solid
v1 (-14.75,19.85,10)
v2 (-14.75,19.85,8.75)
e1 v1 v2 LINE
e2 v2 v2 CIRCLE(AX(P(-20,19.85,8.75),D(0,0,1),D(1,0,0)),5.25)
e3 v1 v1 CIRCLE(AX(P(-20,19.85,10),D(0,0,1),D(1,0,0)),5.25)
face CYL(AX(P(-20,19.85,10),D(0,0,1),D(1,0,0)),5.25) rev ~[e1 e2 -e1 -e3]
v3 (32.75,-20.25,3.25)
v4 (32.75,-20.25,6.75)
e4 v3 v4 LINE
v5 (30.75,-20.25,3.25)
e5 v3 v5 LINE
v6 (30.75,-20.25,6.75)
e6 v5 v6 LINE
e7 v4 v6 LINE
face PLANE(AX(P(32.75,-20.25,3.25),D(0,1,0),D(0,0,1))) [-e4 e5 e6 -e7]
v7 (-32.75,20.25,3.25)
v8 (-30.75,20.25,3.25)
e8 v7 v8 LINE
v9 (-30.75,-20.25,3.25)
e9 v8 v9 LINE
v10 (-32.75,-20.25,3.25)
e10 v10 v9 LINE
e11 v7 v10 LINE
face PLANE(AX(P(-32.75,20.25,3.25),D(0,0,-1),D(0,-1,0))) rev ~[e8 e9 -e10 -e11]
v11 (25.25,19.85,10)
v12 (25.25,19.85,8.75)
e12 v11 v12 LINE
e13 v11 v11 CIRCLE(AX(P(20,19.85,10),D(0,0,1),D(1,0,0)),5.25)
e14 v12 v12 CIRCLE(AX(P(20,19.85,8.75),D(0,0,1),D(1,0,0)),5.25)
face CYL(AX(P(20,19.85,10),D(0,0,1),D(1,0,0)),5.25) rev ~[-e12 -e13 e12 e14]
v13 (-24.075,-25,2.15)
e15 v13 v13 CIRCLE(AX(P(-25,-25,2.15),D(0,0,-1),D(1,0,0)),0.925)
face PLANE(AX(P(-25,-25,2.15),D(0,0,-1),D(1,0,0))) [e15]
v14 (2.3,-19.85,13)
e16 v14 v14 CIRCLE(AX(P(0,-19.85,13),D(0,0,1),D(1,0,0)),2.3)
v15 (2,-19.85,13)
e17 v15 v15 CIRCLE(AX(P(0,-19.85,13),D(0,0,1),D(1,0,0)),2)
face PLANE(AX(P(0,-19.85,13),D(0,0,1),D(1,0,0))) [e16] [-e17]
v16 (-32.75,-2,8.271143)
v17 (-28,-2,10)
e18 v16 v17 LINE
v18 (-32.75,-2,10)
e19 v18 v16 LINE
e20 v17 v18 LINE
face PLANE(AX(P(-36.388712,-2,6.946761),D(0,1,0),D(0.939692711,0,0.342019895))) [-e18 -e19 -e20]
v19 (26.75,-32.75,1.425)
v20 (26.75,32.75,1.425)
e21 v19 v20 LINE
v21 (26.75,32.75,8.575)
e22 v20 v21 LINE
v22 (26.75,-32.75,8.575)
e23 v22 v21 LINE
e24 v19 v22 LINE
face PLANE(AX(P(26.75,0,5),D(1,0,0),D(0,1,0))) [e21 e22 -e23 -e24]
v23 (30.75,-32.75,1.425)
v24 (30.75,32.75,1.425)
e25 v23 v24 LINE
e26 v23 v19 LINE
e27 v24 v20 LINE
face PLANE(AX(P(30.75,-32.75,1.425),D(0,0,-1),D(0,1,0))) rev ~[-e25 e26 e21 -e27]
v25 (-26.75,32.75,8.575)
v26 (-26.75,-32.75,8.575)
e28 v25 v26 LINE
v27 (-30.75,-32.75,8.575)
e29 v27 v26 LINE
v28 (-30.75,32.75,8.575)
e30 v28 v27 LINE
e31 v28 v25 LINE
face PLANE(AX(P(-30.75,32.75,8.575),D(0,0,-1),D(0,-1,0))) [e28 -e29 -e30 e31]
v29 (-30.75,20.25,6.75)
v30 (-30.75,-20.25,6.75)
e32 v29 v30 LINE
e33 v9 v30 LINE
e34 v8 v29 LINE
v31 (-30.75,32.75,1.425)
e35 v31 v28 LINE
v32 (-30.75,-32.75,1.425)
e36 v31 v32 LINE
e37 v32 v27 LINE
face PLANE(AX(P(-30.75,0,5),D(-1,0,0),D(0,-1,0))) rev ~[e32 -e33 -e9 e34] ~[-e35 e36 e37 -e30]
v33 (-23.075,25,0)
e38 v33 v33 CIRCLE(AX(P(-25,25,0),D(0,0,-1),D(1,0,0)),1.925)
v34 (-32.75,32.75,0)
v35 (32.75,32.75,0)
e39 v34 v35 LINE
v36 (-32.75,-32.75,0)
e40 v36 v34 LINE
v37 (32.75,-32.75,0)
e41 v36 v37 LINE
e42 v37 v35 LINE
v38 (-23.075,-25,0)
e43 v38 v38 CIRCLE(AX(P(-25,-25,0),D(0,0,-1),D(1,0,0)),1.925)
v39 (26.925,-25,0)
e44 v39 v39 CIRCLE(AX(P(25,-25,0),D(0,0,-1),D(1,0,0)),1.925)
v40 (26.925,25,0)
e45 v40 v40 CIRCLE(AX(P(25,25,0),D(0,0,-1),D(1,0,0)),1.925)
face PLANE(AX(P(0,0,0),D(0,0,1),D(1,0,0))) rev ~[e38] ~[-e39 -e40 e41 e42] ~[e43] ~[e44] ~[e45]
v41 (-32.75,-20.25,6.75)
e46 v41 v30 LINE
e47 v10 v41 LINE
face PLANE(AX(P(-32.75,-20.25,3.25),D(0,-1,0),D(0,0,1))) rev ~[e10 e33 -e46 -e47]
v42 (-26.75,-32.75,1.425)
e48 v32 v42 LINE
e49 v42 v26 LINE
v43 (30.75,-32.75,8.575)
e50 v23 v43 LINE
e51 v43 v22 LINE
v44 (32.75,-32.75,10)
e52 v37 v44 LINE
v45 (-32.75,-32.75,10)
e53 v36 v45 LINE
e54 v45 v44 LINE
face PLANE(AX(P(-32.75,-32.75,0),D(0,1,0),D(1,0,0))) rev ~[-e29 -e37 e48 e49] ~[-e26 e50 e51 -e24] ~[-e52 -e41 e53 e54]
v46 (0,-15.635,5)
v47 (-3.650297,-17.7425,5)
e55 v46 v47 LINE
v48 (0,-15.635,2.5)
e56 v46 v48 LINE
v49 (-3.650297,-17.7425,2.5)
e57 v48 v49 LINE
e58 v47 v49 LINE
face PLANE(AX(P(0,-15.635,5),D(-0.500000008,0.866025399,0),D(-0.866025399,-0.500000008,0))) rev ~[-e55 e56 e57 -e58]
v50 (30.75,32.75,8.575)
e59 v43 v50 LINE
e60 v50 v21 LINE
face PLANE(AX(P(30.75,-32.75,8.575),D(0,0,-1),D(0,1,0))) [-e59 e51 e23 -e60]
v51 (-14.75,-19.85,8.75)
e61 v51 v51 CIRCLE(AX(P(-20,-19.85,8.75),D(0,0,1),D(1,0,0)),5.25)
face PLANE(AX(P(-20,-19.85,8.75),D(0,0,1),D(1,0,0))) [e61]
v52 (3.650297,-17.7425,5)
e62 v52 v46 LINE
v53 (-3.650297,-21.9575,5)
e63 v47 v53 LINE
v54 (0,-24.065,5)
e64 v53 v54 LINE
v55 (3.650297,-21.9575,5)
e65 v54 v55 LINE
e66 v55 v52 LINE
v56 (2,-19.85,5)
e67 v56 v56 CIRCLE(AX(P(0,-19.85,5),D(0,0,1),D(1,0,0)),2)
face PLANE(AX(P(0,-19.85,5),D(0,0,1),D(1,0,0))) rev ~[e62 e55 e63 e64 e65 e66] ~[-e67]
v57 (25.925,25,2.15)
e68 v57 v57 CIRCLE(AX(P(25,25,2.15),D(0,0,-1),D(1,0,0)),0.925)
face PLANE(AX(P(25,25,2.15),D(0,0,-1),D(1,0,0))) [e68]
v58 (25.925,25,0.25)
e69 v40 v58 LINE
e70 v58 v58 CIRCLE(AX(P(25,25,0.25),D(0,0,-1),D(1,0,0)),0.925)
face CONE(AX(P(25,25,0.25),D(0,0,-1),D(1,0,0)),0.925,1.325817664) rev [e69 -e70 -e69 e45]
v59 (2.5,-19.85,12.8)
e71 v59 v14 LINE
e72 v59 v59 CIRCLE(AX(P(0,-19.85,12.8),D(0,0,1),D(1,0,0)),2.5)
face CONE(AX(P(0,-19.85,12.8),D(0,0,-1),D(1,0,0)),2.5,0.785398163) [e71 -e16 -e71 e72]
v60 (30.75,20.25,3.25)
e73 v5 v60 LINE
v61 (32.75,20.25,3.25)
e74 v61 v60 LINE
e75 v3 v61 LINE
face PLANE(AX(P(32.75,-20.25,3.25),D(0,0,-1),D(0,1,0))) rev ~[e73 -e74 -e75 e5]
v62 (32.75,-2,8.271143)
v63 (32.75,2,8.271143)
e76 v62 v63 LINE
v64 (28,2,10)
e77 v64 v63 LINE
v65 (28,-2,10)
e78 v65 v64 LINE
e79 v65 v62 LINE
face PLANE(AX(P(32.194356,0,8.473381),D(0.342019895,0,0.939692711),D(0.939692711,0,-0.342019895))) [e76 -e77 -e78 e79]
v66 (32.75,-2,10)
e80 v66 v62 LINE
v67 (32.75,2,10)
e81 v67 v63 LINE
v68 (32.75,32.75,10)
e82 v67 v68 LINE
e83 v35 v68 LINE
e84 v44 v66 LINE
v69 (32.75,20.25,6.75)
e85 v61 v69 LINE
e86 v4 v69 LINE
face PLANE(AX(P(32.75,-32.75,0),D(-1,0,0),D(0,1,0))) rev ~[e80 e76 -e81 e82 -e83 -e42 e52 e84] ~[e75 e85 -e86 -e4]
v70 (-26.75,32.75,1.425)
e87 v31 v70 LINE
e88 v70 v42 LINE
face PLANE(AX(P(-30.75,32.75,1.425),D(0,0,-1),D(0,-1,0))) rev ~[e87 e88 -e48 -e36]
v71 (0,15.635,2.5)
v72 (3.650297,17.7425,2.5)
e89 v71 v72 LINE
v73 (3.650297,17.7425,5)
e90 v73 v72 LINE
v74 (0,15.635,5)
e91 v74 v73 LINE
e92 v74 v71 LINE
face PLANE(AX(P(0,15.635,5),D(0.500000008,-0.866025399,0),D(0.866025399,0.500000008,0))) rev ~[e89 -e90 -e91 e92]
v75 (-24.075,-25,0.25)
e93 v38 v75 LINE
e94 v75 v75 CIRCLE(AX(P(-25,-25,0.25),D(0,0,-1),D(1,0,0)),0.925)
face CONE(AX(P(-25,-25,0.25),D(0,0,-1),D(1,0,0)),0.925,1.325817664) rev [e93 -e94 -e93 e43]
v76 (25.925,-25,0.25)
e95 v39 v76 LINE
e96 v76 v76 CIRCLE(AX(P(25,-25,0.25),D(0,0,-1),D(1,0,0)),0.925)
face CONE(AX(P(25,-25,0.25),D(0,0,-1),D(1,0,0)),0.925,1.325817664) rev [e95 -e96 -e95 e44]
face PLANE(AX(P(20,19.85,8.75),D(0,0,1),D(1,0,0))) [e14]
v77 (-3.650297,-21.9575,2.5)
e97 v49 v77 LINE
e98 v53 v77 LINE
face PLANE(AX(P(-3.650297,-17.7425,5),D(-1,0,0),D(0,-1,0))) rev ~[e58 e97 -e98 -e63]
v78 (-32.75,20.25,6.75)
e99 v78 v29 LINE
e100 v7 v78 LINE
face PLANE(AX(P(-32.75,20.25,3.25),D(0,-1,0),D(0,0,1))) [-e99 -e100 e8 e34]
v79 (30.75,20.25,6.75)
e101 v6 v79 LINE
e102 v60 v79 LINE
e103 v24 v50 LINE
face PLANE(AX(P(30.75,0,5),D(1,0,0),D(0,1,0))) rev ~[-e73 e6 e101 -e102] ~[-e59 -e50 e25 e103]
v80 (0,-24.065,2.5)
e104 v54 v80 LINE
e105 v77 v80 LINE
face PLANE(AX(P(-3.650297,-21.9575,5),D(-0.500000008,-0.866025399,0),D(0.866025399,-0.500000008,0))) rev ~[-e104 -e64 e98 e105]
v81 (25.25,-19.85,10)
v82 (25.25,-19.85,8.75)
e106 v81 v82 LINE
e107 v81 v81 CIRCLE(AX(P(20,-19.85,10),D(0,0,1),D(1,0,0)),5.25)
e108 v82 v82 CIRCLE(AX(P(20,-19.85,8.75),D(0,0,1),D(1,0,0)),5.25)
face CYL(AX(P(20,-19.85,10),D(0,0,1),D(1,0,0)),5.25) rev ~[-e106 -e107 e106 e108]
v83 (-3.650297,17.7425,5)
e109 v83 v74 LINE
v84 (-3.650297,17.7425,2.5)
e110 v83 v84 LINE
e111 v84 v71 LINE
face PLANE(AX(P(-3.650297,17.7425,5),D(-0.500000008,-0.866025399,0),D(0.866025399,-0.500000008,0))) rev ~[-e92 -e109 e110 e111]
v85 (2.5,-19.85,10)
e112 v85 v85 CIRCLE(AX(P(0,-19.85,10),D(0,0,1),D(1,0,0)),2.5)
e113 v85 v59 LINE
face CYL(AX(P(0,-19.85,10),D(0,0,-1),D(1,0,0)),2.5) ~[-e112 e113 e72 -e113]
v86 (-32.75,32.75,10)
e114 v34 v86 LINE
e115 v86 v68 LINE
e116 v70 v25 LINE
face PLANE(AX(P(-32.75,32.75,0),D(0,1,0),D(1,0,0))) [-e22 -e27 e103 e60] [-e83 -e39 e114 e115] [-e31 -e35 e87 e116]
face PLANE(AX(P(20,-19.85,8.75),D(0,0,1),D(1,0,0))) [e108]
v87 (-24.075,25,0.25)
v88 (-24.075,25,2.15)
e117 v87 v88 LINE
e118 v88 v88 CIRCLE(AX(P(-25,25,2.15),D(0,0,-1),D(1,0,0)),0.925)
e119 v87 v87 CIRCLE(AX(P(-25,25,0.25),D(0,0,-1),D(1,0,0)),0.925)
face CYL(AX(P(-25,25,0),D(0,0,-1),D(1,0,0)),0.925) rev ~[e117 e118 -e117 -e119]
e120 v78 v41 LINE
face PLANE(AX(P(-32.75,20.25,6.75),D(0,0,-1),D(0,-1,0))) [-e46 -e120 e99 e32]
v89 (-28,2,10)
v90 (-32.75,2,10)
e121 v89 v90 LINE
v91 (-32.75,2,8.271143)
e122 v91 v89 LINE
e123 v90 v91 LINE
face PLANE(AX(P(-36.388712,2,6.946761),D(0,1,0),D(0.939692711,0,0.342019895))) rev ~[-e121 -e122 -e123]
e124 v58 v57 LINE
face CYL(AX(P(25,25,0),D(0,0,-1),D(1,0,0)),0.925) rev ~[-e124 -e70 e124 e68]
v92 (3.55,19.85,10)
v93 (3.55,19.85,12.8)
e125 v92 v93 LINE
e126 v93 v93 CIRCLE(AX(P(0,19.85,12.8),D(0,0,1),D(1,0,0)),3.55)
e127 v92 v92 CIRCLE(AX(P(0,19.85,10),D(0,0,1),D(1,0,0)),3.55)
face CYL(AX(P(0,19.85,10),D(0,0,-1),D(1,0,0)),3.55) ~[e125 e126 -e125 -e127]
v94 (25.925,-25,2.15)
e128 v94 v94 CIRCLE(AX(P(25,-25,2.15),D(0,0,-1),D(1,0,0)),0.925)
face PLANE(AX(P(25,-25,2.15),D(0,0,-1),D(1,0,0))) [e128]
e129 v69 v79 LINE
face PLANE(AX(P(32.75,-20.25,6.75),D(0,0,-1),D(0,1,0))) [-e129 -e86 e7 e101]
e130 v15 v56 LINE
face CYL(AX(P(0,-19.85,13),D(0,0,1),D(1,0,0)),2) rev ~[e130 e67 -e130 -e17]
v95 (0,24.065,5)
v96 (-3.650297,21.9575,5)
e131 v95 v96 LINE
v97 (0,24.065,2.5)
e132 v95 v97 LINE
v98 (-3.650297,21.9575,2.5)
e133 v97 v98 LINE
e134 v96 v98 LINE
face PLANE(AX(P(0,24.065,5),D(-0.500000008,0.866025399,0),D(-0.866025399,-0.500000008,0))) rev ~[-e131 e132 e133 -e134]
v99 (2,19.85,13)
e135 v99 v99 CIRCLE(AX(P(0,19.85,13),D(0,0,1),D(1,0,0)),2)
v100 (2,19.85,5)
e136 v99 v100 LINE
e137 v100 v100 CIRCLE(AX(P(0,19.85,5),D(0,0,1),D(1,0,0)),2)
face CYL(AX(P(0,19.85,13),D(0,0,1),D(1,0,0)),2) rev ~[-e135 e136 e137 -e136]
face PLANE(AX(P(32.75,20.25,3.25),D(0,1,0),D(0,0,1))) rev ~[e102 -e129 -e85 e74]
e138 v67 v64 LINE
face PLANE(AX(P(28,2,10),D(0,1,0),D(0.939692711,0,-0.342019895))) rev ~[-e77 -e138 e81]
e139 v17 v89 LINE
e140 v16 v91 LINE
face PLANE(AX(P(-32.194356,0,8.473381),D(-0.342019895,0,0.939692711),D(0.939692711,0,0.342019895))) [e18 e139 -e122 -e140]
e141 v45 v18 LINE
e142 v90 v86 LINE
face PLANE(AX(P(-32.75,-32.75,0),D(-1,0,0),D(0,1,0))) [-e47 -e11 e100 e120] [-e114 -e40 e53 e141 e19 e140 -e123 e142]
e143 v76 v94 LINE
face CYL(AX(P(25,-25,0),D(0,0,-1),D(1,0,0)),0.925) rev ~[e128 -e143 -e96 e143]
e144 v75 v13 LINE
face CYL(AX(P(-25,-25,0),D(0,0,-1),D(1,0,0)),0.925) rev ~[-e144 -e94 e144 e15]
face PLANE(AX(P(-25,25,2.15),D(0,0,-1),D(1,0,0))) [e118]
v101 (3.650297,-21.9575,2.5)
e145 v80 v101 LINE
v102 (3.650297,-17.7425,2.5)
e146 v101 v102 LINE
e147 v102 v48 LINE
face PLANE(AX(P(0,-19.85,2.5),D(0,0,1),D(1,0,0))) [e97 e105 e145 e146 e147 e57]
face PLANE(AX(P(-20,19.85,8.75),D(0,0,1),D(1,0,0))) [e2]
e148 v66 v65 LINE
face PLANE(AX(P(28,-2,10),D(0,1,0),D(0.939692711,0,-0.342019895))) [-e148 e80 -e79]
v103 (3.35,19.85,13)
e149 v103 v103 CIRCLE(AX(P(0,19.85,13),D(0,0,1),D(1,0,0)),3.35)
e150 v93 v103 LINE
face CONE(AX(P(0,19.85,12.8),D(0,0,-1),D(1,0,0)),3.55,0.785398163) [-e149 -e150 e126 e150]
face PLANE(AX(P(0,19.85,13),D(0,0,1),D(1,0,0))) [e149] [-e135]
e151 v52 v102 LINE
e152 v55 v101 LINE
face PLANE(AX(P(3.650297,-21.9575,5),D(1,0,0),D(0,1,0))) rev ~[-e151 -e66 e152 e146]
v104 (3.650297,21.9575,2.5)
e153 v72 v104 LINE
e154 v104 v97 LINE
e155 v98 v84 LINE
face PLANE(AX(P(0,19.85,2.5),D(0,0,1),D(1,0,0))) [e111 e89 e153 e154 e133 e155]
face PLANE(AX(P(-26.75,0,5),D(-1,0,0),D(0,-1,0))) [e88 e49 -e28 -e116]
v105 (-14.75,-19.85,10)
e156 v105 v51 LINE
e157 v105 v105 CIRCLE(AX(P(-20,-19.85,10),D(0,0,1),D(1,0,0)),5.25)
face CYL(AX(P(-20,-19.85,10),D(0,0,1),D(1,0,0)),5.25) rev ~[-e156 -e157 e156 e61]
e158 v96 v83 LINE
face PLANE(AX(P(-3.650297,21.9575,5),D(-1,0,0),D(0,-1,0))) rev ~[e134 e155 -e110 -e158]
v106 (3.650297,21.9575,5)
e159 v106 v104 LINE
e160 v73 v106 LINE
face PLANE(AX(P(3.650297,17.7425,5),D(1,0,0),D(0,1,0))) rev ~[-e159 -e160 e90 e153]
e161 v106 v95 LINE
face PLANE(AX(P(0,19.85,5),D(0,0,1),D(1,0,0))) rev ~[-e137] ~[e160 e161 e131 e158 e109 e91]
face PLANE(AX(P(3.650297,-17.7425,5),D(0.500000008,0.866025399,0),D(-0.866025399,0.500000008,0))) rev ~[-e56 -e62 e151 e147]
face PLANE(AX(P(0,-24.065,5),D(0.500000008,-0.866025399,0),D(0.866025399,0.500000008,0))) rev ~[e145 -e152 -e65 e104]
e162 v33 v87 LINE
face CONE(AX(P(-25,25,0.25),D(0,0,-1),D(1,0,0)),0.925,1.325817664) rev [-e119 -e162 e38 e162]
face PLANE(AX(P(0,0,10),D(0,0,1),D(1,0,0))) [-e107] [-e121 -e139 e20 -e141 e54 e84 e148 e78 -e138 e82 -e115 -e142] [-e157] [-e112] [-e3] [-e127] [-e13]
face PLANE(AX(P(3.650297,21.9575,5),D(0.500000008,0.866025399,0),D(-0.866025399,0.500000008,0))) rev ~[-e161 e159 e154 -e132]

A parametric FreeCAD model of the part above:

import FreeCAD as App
import Part
import Sketcher
Q = App.Units.Quantity


def edges_at(feature, points):
    """Names of the edges that pass closest to the given points."""
    edges = feature.Shape.Edges
    near = lambda p: min(range(len(edges)), key=lambda i: edges[i].distToShape(Part.Vertex(*p))[0])
    return sorted({f"Edge{near(p) + 1}" for p in points})

doc = App.newDocument("Part")
params = doc.addObject("Spreadsheet::Sheet", "Params")
for row, (alias, value) in enumerate([
    ("sketch1_width", "65.5 mm"),
    ("pad1_length", "10 mm"),
    ("sketch2_diameter", "5 mm"),
    ("sketch2_diameter2", "7.1 mm"),
    ("pad2_length", "3 mm"),
    ("sketch3_diameter", "4 mm"),
    ("pocket1_length", "8 mm"),
    ("chamfer_size", "0.2 mm"),
    ("pocket2_length", "2.5 mm"),
    ("sketch5_width", "40.5 mm"),
    ("sketch5_height", "3.5 mm"),
    ("pocket3_length", "2 mm"),
    ("sketch6_width", "40.5 mm"),
    ("sketch6_height", "3.5 mm"),
    ("pocket4_length", "2 mm"),
    ("sketch7_width", "65.5 mm"),
    ("sketch7_height", "7.15 mm"),
    ("pocket5_length", "4 mm"),
    ("sketch8_width", "65.5 mm"),
    ("sketch8_height", "7.15 mm"),
    ("pocket6_length", "4 mm"),
    ("sketch9_diameter", "1.85 mm"),
    ("pocket7_length", "2.15 mm"),
    ("chamfer2_size", "1 mm"),
    ("chamfer2_size2", "0.25 mm"),
    ("sketch10_diameter", "10.5 mm"),
    ("pocket8_length", "1.25 mm"),
    ("sketch11_height", "4 mm"),
    ("pocket9_length", "4 mm"),
    ("sketch12_height", "4 mm"),
    ("pocket10_length", "5 mm"),
], start=1):
    params.set(f"A{row}", alias)
    params.set(f"B{row}", "=" + value)
    params.setAlias(f"B{row}", alias)

body = doc.addObject("PartDesign::Body", "Body")

# Sketch on XY plane
sketch1 = body.newObject("Sketcher::SketchObject", "Sketch")
sketch1.AttachmentSupport = (doc.getObject("XY_Plane"), [""])
sketch1.MapMode = "FlatFace"
sketch1.addGeometry(Part.LineSegment(App.Vector(-33, 33, 0), App.Vector(-33, -33, 0)), False)
sketch1.addGeometry(Part.LineSegment(App.Vector(-33, -33, 0), App.Vector(33, -33, 0)), False)
sketch1.addGeometry(Part.LineSegment(App.Vector(33, -33, 0), App.Vector(33, 33, 0)), False)
sketch1.addGeometry(Part.LineSegment(App.Vector(33, 33, 0), App.Vector(-33, 33, 0)), False)
sketch1.addConstraint(Sketcher.Constraint("Coincident", 0, 2, 1, 1))
sketch1.addConstraint(Sketcher.Constraint("Coincident", 1, 2, 2, 1))
sketch1.addConstraint(Sketcher.Constraint("Coincident", 2, 2, 3, 1))
sketch1.addConstraint(Sketcher.Constraint("Coincident", 3, 2, 0, 1))
sketch1.addConstraint(Sketcher.Constraint("Vertical", 0))
sketch1.addConstraint(Sketcher.Constraint("Horizontal", 1))
sketch1.addConstraint(Sketcher.Constraint("Vertical", 2))
sketch1.addConstraint(Sketcher.Constraint("Horizontal", 3))
sketch1.addConstraint(Sketcher.Constraint("Symmetric", 0, 2, 2, 2, -1, 1))
sketch1.addConstraint(Sketcher.Constraint("Equal", 3, 0))
sketch1.addConstraint(Sketcher.Constraint("DistanceX", 1, 1, 1, 2, Q("65.5 mm")))
sketch1.setExpression("Constraints[10]", "Params.sketch1_width")
pad1 = body.newObject("PartDesign::Pad", "Pad")
pad1.Profile = sketch1
pad1.setExpression("Length", "Params.pad1_length")

# Sketch on XY plane
sketch2 = body.newObject("Sketcher::SketchObject", "Sketch001")
sketch2.AttachmentSupport = (doc.getObject("XY_Plane"), [""])
sketch2.MapMode = "FlatFace"
sketch2.AttachmentOffset = App.Placement(App.Vector(0, 0, 10), App.Rotation())
sketch2.addGeometry(Part.Circle(App.Vector(0, 19.9, 0), App.Vector(0, 0, 1), 3.5), False)
sketch2.addGeometry(Part.Circle(App.Vector(0, -19.9, 0), App.Vector(0, 0, 1), 2.5), False)
sketch2.addConstraint(Sketcher.Constraint("Symmetric", 0, 3, 1, 3, -1, 1))
sketch2.addConstraint(Sketcher.Constraint("PointOnObject", 0, 3, -2))
sketch2.addConstraint(Sketcher.Constraint("Diameter", 1, Q("5 mm")))
sketch2.addConstraint(Sketcher.Constraint("Diameter", 0, Q("7.1 mm")))
sketch2.addConstraint(Sketcher.Constraint("DistanceY", 1, 3, 0, 3, Q("39.7 mm")))
sketch2.setExpression("Constraints[2]", "Params.sketch2_diameter")
sketch2.setExpression("Constraints[3]", "Params.sketch2_diameter2")
pad2 = body.newObject("PartDesign::Pad", "Pad001")
pad2.Profile = sketch2
pad2.setExpression("Length", "Params.pad2_length")

# Sketch on XY plane
sketch3 = body.newObject("Sketcher::SketchObject", "Sketch002")
sketch3.AttachmentSupport = (doc.getObject("XY_Plane"), [""])
sketch3.MapMode = "FlatFace"
sketch3.AttachmentOffset = App.Placement(App.Vector(0, 0, 13), App.Rotation())
sketch3.addGeometry(Part.Circle(App.Vector(0, 19.9, 0), App.Vector(0, 0, 1), 2), False)
sketch3.addGeometry(Part.Circle(App.Vector(0, -19.9, 0), App.Vector(0, 0, 1), 2), False)
sketch3.addConstraint(Sketcher.Constraint("Equal", 0, 1))
sketch3.addConstraint(Sketcher.Constraint("Symmetric", 0, 3, 1, 3, -1, 1))
sketch3.addConstraint(Sketcher.Constraint("PointOnObject", 0, 3, -2))
sketch3.addConstraint(Sketcher.Constraint("Diameter", 0, Q("4 mm")))
sketch3.addConstraint(Sketcher.Constraint("DistanceY", 1, 3, 0, 3, Q("39.7 mm")))
sketch3.setExpression("Constraints[3]", "Params.sketch3_diameter")
pocket1 = body.newObject("PartDesign::Pocket", "Pocket")
pocket1.Profile = sketch3
pocket1.setExpression("Length", "Params.pocket1_length")
doc.recompute()

chamfer = body.newObject("PartDesign::Chamfer", "Chamfer")
chamfer.Base = (pocket1, edges_at(pocket1, [(-3.55, 19.85, 13), (-2.5, -19.85, 13)]))
chamfer.setExpression("Size", "Params.chamfer_size")

# Sketch on XY plane
sketch4 = body.newObject("Sketcher::SketchObject", "Sketch003")
sketch4.AttachmentSupport = (doc.getObject("XY_Plane"), [""])
sketch4.MapMode = "FlatFace"
sketch4.AttachmentOffset = App.Placement(App.Vector(0, 0, 5), App.Rotation())
sketch4.addGeometry(Part.LineSegment(App.Vector(-3.7, 17.7, 0), App.Vector(0, 15.6, 0)), False)
sketch4.addGeometry(Part.LineSegment(App.Vector(0, 15.6, 0), App.Vector(3.7, 17.7, 0)), False)
sketch4.addGeometry(Part.LineSegment(App.Vector(3.7, 17.7, 0), App.Vector(3.7, 22, 0)), False)
sketch4.addGeometry(Part.LineSegment(App.Vector(3.7, 22, 0), App.Vector(0, 24.1, 0)), False)
sketch4.addGeometry(Part.LineSegment(App.Vector(0, 24.1, 0), App.Vector(-3.7, 22, 0)), False)
sketch4.addGeometry(Part.LineSegment(App.Vector(-3.7, 22, 0), App.Vector(-3.7, 17.7, 0)), False)
sketch4.addGeometry(Part.LineSegment(App.Vector(-3.7, -22, 0), App.Vector(0, -24.1, 0)), False)
sketch4.addGeometry(Part.LineSegment(App.Vector(0, -24.1, 0), App.Vector(3.7, -22, 0)), False)
sketch4.addGeometry(Part.LineSegment(App.Vector(3.7, -22, 0), App.Vector(3.7, -17.7, 0)), False)
sketch4.addGeometry(Part.LineSegment(App.Vector(3.7, -17.7, 0), App.Vector(0, -15.6, 0)), False)
sketch4.addGeometry(Part.LineSegment(App.Vector(0, -15.6, 0), App.Vector(-3.7, -17.7, 0)), False)
sketch4.addGeometry(Part.LineSegment(App.Vector(-3.7, -17.7, 0), App.Vector(-3.7, -22, 0)), False)
sketch4.addConstraint(Sketcher.Constraint("Coincident", 0, 2, 1, 1))
sketch4.addConstraint(Sketcher.Constraint("Coincident", 1, 2, 2, 1))
sketch4.addConstraint(Sketcher.Constraint("Coincident", 2, 2, 3, 1))
sketch4.addConstraint(Sketcher.Constraint("Coincident", 3, 2, 4, 1))
sketch4.addConstraint(Sketcher.Constraint("Coincident", 4, 2, 5, 1))
sketch4.addConstraint(Sketcher.Constraint("Coincident", 5, 2, 0, 1))
sketch4.addConstraint(Sketcher.Constraint("Coincident", 6, 2, 7, 1))
sketch4.addConstraint(Sketcher.Constraint("Coincident", 7, 2, 8, 1))
sketch4.addConstraint(Sketcher.Constraint("Coincident", 8, 2, 9, 1))
sketch4.addConstraint(Sketcher.Constraint("Coincident", 9, 2, 10, 1))
sketch4.addConstraint(Sketcher.Constraint("Coincident", 10, 2, 11, 1))
sketch4.addConstraint(Sketcher.Constraint("Coincident", 11, 2, 6, 1))
sketch4.addConstraint(Sketcher.Constraint("Vertical", 2))
sketch4.addConstraint(Sketcher.Constraint("Vertical", 5))
sketch4.addConstraint(Sketcher.Constraint("Vertical", 8))
sketch4.addConstraint(Sketcher.Constraint("Vertical", 11))
sketch4.addConstraint(Sketcher.Constraint("Symmetric", 3, 2, 6, 2, -1, 1))
sketch4.addConstraint(Sketcher.Constraint("Symmetric", 4, 2, 7, 2, -1, 1))
sketch4.addConstraint(Sketcher.Constraint("Symmetric", 0, 2, 9, 2, -1, 1))
sketch4.addConstraint(Sketcher.Constraint("Symmetric", 1, 2, 10, 2, -1, 1))
sketch4.addConstraint(Sketcher.Constraint("Symmetric", 2, 2, 4, 2, -2))
sketch4.addConstraint(Sketcher.Constraint("PointOnObject", 0, 2, -2))
sketch4.addConstraint(Sketcher.Constraint("PointOnObject", 3, 2, -2))
sketch4.addConstraint(Sketcher.Constraint("Parallel", 0, 3))
sketch4.addConstraint(Sketcher.Constraint("Parallel", 1, 4))
sketch4.addConstraint(Sketcher.Constraint("Parallel", 3, 6))
sketch4.addConstraint(Sketcher.Constraint("Parallel", 6, 9))
sketch4.addConstraint(Sketcher.Constraint("Angle", 0, Q("-30.000001 deg")))
sketch4.addConstraint(Sketcher.Constraint("DistanceY", 6, 2, 0, 2, Q("39.7 mm")))
sketch4.addConstraint(Sketcher.Constraint("DistanceY", 2, 1, 2, 2, Q("4.215 mm")))
sketch4.addConstraint(Sketcher.Constraint("DistanceY", 0, 2, 3, 2, Q("8.43 mm")))
pocket2 = body.newObject("PartDesign::Pocket", "Pocket001")
pocket2.Profile = sketch4
pocket2.setExpression("Length", "Params.pocket2_length")

# Sketch on YZ plane
sketch5 = body.newObject("Sketcher::SketchObject", "Sketch004")
sketch5.AttachmentSupport = (doc.getObject("YZ_Plane"), [""])
sketch5.MapMode = "FlatFace"
sketch5.AttachmentOffset = App.Placement(App.Vector(0, 0, 32.75), App.Rotation())
sketch5.addGeometry(Part.LineSegment(App.Vector(-20.2, 6.8, 0), App.Vector(-20.2, 3.2, 0)), False)
sketch5.addGeometry(Part.LineSegment(App.Vector(-20.2, 3.2, 0), App.Vector(20.2, 3.2, 0)), False)
sketch5.addGeometry(Part.LineSegment(App.Vector(20.2, 3.2, 0), App.Vector(20.2, 6.8, 0)), False)
sketch5.addGeometry(Part.LineSegment(App.Vector(20.2, 6.8, 0), App.Vector(-20.2, 6.8, 0)), False)
sketch5.addConstraint(Sketcher.Constraint("Coincident", 0, 2, 1, 1))
sketch5.addConstraint(Sketcher.Constraint("Coincident", 1, 2, 2, 1))
sketch5.addConstraint(Sketcher.Constraint("Coincident", 2, 2, 3, 1))
sketch5.addConstraint(Sketcher.Constraint("Coincident", 3, 2, 0, 1))
sketch5.addConstraint(Sketcher.Constraint("Vertical", 0))
sketch5.addConstraint(Sketcher.Constraint("Horizontal", 1))
sketch5.addConstraint(Sketcher.Constraint("Vertical", 2))
sketch5.addConstraint(Sketcher.Constraint("Horizontal", 3))
sketch5.addConstraint(Sketcher.Constraint("DistanceX", 1, 1, 1, 2, Q("40.5 mm")))
sketch5.addConstraint(Sketcher.Constraint("DistanceY", 0, 2, 0, 1, Q("3.5 mm")))
sketch5.addConstraint(Sketcher.Constraint("DistanceX", 0, 2, -1, 1, Q("20.25 mm")))
sketch5.addConstraint(Sketcher.Constraint("DistanceY", -1, 1, 0, 2, Q("3.25 mm")))
sketch5.setExpression("Constraints[8]", "Params.sketch5_width")
sketch5.setExpression("Constraints[9]", "Params.sketch5_height")
pocket3 = body.newObject("PartDesign::Pocket", "Pocket002")
pocket3.Profile = sketch5
pocket3.setExpression("Length", "Params.pocket3_length")

# Sketch on YZ plane
sketch6 = body.newObject("Sketcher::SketchObject", "Sketch005")
sketch6.AttachmentSupport = (doc.getObject("YZ_Plane"), [""])
sketch6.MapMode = "FlatFace"
sketch6.AttachmentOffset = App.Placement(App.Vector(0, 0, -32.75), App.Rotation())
sketch6.addGeometry(Part.LineSegment(App.Vector(20.2, 6.8, 0), App.Vector(20.2, 3.2, 0)), False)
sketch6.addGeometry(Part.LineSegment(App.Vector(20.2, 3.2, 0), App.Vector(-20.2, 3.2, 0)), False)
sketch6.addGeometry(Part.LineSegment(App.Vector(-20.2, 3.2, 0), App.Vector(-20.2, 6.8, 0)), False)
sketch6.addGeometry(Part.LineSegment(App.Vector(-20.2, 6.8, 0), App.Vector(20.2, 6.8, 0)), False)
sketch6.addConstraint(Sketcher.Constraint("Coincident", 0, 2, 1, 1))
sketch6.addConstraint(Sketcher.Constraint("Coincident", 1, 2, 2, 1))
sketch6.addConstraint(Sketcher.Constraint("Coincident", 2, 2, 3, 1))
sketch6.addConstraint(Sketcher.Constraint("Coincident", 3, 2, 0, 1))
sketch6.addConstraint(Sketcher.Constraint("Vertical", 0))
sketch6.addConstraint(Sketcher.Constraint("Horizontal", 1))
sketch6.addConstraint(Sketcher.Constraint("Vertical", 2))
sketch6.addConstraint(Sketcher.Constraint("Horizontal", 3))
sketch6.addConstraint(Sketcher.Constraint("DistanceX", 1, 2, 1, 1, Q("40.5 mm")))
sketch6.addConstraint(Sketcher.Constraint("DistanceY", 0, 2, 0, 1, Q("3.5 mm")))
sketch6.addConstraint(Sketcher.Constraint("DistanceX", -1, 1, 0, 2, Q("20.25 mm")))
sketch6.addConstraint(Sketcher.Constraint("DistanceY", -1, 1, 0, 2, Q("3.25 mm")))
sketch6.setExpression("Constraints[8]", "Params.sketch6_width")
sketch6.setExpression("Constraints[9]", "Params.sketch6_height")
pocket4 = body.newObject("PartDesign::Pocket", "Pocket003")
pocket4.Profile = sketch6
pocket4.setExpression("Length", "Params.pocket4_length")
pocket4.Reversed = True

# Sketch on YZ plane
sketch7 = body.newObject("Sketcher::SketchObject", "Sketch006")
sketch7.AttachmentSupport = (doc.getObject("YZ_Plane"), [""])
sketch7.MapMode = "FlatFace"
sketch7.AttachmentOffset = App.Placement(App.Vector(0, 0, 30.75), App.Rotation())
sketch7.addGeometry(Part.LineSegment(App.Vector(-33, 9, 0), App.Vector(-33, 1, 0)), False)
sketch7.addGeometry(Part.LineSegment(App.Vector(-33, 1, 0), App.Vector(33, 1, 0)), False)
sketch7.addGeometry(Part.LineSegment(App.Vector(33, 1, 0), App.Vector(33, 9, 0)), False)
sketch7.addGeometry(Part.LineSegment(App.Vector(33, 9, 0), App.Vector(-33, 9, 0)), False)
sketch7.addConstraint(Sketcher.Constraint("Coincident", 0, 2, 1, 1))
sketch7.addConstraint(Sketcher.Constraint("Coincident", 1, 2, 2, 1))
sketch7.addConstraint(Sketcher.Constraint("Coincident", 2, 2, 3, 1))
sketch7.addConstraint(Sketcher.Constraint("Coincident", 3, 2, 0, 1))
sketch7.addConstraint(Sketcher.Constraint("Vertical", 0))
sketch7.addConstraint(Sketcher.Constraint("Horizontal", 1))
sketch7.addConstraint(Sketcher.Constraint("Vertical", 2))
sketch7.addConstraint(Sketcher.Constraint("Horizontal", 3))
sketch7.addConstraint(Sketcher.Constraint("DistanceX", 1, 1, 1, 2, Q("65.5 mm")))
sketch7.addConstraint(Sketcher.Constraint("DistanceY", 0, 2, 0, 1, Q("7.15 mm")))
sketch7.addConstraint(Sketcher.Constraint("DistanceX", 0, 2, -1, 1, Q("32.75 mm")))
sketch7.addConstraint(Sketcher.Constraint("DistanceY", -1, 1, 0, 2, Q("1.425 mm")))
sketch7.setExpression("Constraints[8]", "Params.sketch7_width")
sketch7.setExpression("Constraints[9]", "Params.sketch7_height")
pocket5 = body.newObject("PartDesign::Pocket", "Pocket004")
pocket5.Profile = sketch7
pocket5.setExpression("Length", "Params.pocket5_length")

# Sketch on YZ plane
sketch8 = body.newObject("Sketcher::SketchObject", "Sketch007")
sketch8.AttachmentSupport = (doc.getObject("YZ_Plane"), [""])
sketch8.MapMode = "FlatFace"
sketch8.AttachmentOffset = App.Placement(App.Vector(0, 0, -30.75), App.Rotation())
sketch8.addGeometry(Part.LineSegment(App.Vector(33, 9, 0), App.Vector(33, 1, 0)), False)
sketch8.addGeometry(Part.LineSegment(App.Vector(33, 1, 0), App.Vector(-33, 1, 0)), False)
sketch8.addGeometry(Part.LineSegment(App.Vector(-33, 1, 0), App.Vector(-33, 9, 0)), False)
sketch8.addGeometry(Part.LineSegment(App.Vector(-33, 9, 0), App.Vector(33, 9, 0)), False)
sketch8.addConstraint(Sketcher.Constraint("Coincident", 0, 2, 1, 1))
sketch8.addConstraint(Sketcher.Constraint("Coincident", 1, 2, 2, 1))
sketch8.addConstraint(Sketcher.Constraint("Coincident", 2, 2, 3, 1))
sketch8.addConstraint(Sketcher.Constraint("Coincident", 3, 2, 0, 1))
sketch8.addConstraint(Sketcher.Constraint("Vertical", 0))
sketch8.addConstraint(Sketcher.Constraint("Horizontal", 1))
sketch8.addConstraint(Sketcher.Constraint("Vertical", 2))
sketch8.addConstraint(Sketcher.Constraint("Horizontal", 3))
sketch8.addConstraint(Sketcher.Constraint("DistanceX", 1, 2, 1, 1, Q("65.5 mm")))
sketch8.addConstraint(Sketcher.Constraint("DistanceY", 0, 2, 0, 1, Q("7.15 mm")))
sketch8.addConstraint(Sketcher.Constraint("DistanceX", -1, 1, 0, 2, Q("32.75 mm")))
sketch8.addConstraint(Sketcher.Constraint("DistanceY", -1, 1, 0, 2, Q("1.425 mm")))
sketch8.setExpression("Constraints[8]", "Params.sketch8_width")
sketch8.setExpression("Constraints[9]", "Params.sketch8_height")
pocket6 = body.newObject("PartDesign::Pocket", "Pocket005")
pocket6.Profile = sketch8
pocket6.setExpression("Length", "Params.pocket6_length")
pocket6.Reversed = True

# Sketch on XY plane
sketch9 = body.newObject("Sketcher::SketchObject", "Sketch008")
sketch9.AttachmentSupport = (doc.getObject("XY_Plane"), [""])
sketch9.MapMode = "FlatFace"
sketch9.addGeometry(Part.Circle(App.Vector(-25, -25, 0), App.Vector(0, 0, 1), 0.9), False)
sketch9.addGeometry(Part.Circle(App.Vector(25, -25, 0), App.Vector(0, 0, 1), 0.9), False)
sketch9.addGeometry(Part.Circle(App.Vector(-25, 25, 0), App.Vector(0, 0, 1), 0.9), False)
sketch9.addGeometry(Part.Circle(App.Vector(25, 25, 0), App.Vector(0, 0, 1), 0.9), False)
sketch9.addConstraint(Sketcher.Constraint("Equal", 0, 1))
sketch9.addConstraint(Sketcher.Constraint("Equal", 1, 2))
sketch9.addConstraint(Sketcher.Constraint("Equal", 2, 3))
sketch9.addConstraint(Sketcher.Constraint("Symmetric", 1, 3, 2, 3, -1, 1))
sketch9.addConstraint(Sketcher.Constraint("Symmetric", 0, 3, 3, 3, -1, 1))
sketch9.addConstraint(Sketcher.Constraint("Symmetric", 0, 3, 1, 3, -2))
sketch9.addConstraint(Sketcher.Constraint("Diameter", 0, Q("1.85 mm")))
sketch9.addConstraint(Sketcher.Constraint("DistanceX", 0, 3, -1, 1, Q("25 mm")))
sketch9.addConstraint(Sketcher.Constraint("DistanceY", 0, 3, -1, 1, Q("25 mm")))
sketch9.setExpression("Constraints[6]", "Params.sketch9_diameter")
pocket7 = body.newObject("PartDesign::Pocket", "Pocket006")
pocket7.Profile = sketch9
pocket7.setExpression("Length", "Params.pocket7_length")
pocket7.Reversed = True
doc.recompute()

chamfer2 = body.newObject("PartDesign::Chamfer", "Chamfer001")
chamfer2.Base = (pocket7, edges_at(pocket7, [
    (-25.925, -25, 0),
    (24.075, -25, 0),
    (-25.925, 25, 0),
    (24.075, 25, 0),
]))
chamfer2.ChamferType = "Two distances"
chamfer2.setExpression("Size", "Params.chamfer2_size")
chamfer2.setExpression("Size2", "Params.chamfer2_size2")

# Sketch on XY plane
sketch10 = body.newObject("Sketcher::SketchObject", "Sketch009")
sketch10.AttachmentSupport = (doc.getObject("XY_Plane"), [""])
sketch10.MapMode = "FlatFace"
sketch10.AttachmentOffset = App.Placement(App.Vector(0, 0, 10), App.Rotation())
sketch10.addGeometry(Part.Circle(App.Vector(-20, 20, 0), App.Vector(0, 0, 1), 5), False)
sketch10.addGeometry(Part.Circle(App.Vector(20, 20, 0), App.Vector(0, 0, 1), 5), False)
sketch10.addGeometry(Part.Circle(App.Vector(20, -20, 0), App.Vector(0, 0, 1), 5), False)
sketch10.addGeometry(Part.Circle(App.Vector(-20, -20, 0), App.Vector(0, 0, 1), 5), False)
sketch10.addConstraint(Sketcher.Constraint("Equal", 0, 1))
sketch10.addConstraint(Sketcher.Constraint("Equal", 1, 2))
sketch10.addConstraint(Sketcher.Constraint("Equal", 2, 3))
sketch10.addConstraint(Sketcher.Constraint("Symmetric", 0, 3, 2, 3, -1, 1))
sketch10.addConstraint(Sketcher.Constraint("Symmetric", 1, 3, 3, 3, -1, 1))
sketch10.addConstraint(Sketcher.Constraint("Symmetric", 0, 3, 1, 3, -2))
sketch10.addConstraint(Sketcher.Constraint("Diameter", 0, Q("10.5 mm")))
sketch10.addConstraint(Sketcher.Constraint("DistanceX", 0, 3, -1, 1, Q("20 mm")))
sketch10.addConstraint(Sketcher.Constraint("DistanceY", 2, 3, 1, 3, Q("39.7 mm")))
sketch10.setExpression("Constraints[6]", "Params.sketch10_diameter")
pocket8 = body.newObject("PartDesign::Pocket", "Pocket007")
pocket8.Profile = sketch10
pocket8.setExpression("Length", "Params.pocket8_length")

# Sketch on an angled plane
sketch11 = body.newObject("Sketcher::SketchObject", "Sketch010")
sketch11.Placement = App.Placement(App.Vector(28, 0, 10), App.Rotation(App.Vector(0.939692711, 0, -0.342019895), App.Vector(0, 1, 0), App.Vector(0.342019895, 0, 0.939692711), "ZXY"))
sketch11.addGeometry(Part.LineSegment(App.Vector(0, 2, 0), App.Vector(0, -2, 0)), False)
sketch11.addGeometry(Part.LineSegment(App.Vector(0, -2, 0), App.Vector(8.9, -2, 0)), False)
sketch11.addGeometry(Part.LineSegment(App.Vector(8.9, -2, 0), App.Vector(8.9, 2, 0)), False)
sketch11.addGeometry(Part.LineSegment(App.Vector(8.9, 2, 0), App.Vector(0, 2, 0)), False)
sketch11.addConstraint(Sketcher.Constraint("Coincident", 0, 2, 1, 1))
sketch11.addConstraint(Sketcher.Constraint("Coincident", 1, 2, 2, 1))
sketch11.addConstraint(Sketcher.Constraint("Coincident", 2, 2, 3, 1))
sketch11.addConstraint(Sketcher.Constraint("Coincident", 3, 2, 0, 1))
sketch11.addConstraint(Sketcher.Constraint("Vertical", 0))
sketch11.addConstraint(Sketcher.Constraint("Horizontal", 1))
sketch11.addConstraint(Sketcher.Constraint("Vertical", 2))
sketch11.addConstraint(Sketcher.Constraint("Horizontal", 3))
sketch11.addConstraint(Sketcher.Constraint("Symmetric", 0, 2, 3, 2, -1, 1))
sketch11.addConstraint(Sketcher.Constraint("DistanceY", 0, 2, 0, 1, Q("4 mm")))
sketch11.addConstraint(Sketcher.Constraint("DistanceX", 1, 1, 1, 2, Q("8.92708 mm")))
sketch11.setExpression("Constraints[9]", "Params.sketch11_height")
pocket9 = body.newObject("PartDesign::Pocket", "Pocket008")
pocket9.Profile = sketch11
pocket9.setExpression("Length", "Params.pocket9_length")
pocket9.Reversed = True

# Sketch on an angled plane
sketch12 = body.newObject("Sketcher::SketchObject", "Sketch011")
sketch12.Placement = App.Placement(App.Vector(-28, 0, 10), App.Rotation(App.Vector(0.939692711, 0, 0.342019895), App.Vector(0, 1, 0), App.Vector(-0.342019895, 0, 0.939692711), "ZXY"))
sketch12.addGeometry(Part.LineSegment(App.Vector(-8.9, 2, 0), App.Vector(-8.9, -2, 0)), False)
sketch12.addGeometry(Part.LineSegment(App.Vector(-8.9, -2, 0), App.Vector(0, -2, 0)), False)
sketch12.addGeometry(Part.LineSegment(App.Vector(0, -2, 0), App.Vector(0, 2, 0)), False)
sketch12.addGeometry(Part.LineSegment(App.Vector(0, 2, 0), App.Vector(-8.9, 2, 0)), False)
sketch12.addConstraint(Sketcher.Constraint("Coincident", 0, 2, 1, 1))
sketch12.addConstraint(Sketcher.Constraint("Coincident", 1, 2, 2, 1))
sketch12.addConstraint(Sketcher.Constraint("Coincident", 2, 2, 3, 1))
sketch12.addConstraint(Sketcher.Constraint("Coincident", 3, 2, 0, 1))
sketch12.addConstraint(Sketcher.Constraint("Vertical", 0))
sketch12.addConstraint(Sketcher.Constraint("Horizontal", 1))
sketch12.addConstraint(Sketcher.Constraint("Vertical", 2))
sketch12.addConstraint(Sketcher.Constraint("Horizontal", 3))
sketch12.addConstraint(Sketcher.Constraint("Symmetric", 1, 2, 2, 2, -1, 1))
sketch12.addConstraint(Sketcher.Constraint("DistanceY", 0, 2, 0, 1, Q("4 mm")))
sketch12.addConstraint(Sketcher.Constraint("DistanceX", 1, 1, 1, 2, Q("8.92708 mm")))
sketch12.setExpression("Constraints[9]", "Params.sketch12_height")
pocket10 = body.newObject("PartDesign::Pocket", "Pocket009")
pocket10.Profile = sketch12
pocket10.setExpression("Length", "Params.pocket10_length")
pocket10.Reversed = True

doc.recompute()
